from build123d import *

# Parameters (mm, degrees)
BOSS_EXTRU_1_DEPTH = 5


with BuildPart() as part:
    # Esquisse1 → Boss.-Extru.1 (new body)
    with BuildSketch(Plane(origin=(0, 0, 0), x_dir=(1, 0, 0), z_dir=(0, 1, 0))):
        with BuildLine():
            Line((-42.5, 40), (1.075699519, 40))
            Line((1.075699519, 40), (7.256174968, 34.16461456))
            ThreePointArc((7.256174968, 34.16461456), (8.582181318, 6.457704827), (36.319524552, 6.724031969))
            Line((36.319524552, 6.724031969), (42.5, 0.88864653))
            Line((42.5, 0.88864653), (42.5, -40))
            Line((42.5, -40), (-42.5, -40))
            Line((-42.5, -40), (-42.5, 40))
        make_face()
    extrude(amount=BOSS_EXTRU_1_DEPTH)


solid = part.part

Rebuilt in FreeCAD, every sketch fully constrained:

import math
import FreeCAD as App
import Part
import Sketcher

V = App.Vector

doc = App.newDocument("Part")
body = doc.addObject("PartDesign::Body", "Body")

sketch1 = body.newObject("Sketcher::SketchObject", "Sketch")
sketch1.AttachmentSupport = (doc.getObject("XZ_Plane"), [""])
sketch1.MapMode = "FlatFace"
sketch1.addGeometry(Part.LineSegment(V(1.0757, -40, 0), V(-42.5, -40, 0)), False)
sketch1.addGeometry(Part.LineSegment(V(-42.5, -40, 0), V(-42.5, 40, 0)), False)
sketch1.addGeometry(Part.LineSegment(V(-42.5, 40, 0), V(42.5, 40, 0)), False)
sketch1.addGeometry(Part.LineSegment(V(42.5, 40, 0), V(42.5, -0.888647, 0)), False)
sketch1.addGeometry(Part.LineSegment(V(42.5, -0.888647, 0), V(36.319525, -6.724032, 0)), False)
sketch1.addGeometry(Part.ArcOfCircle(Part.Circle(V(22.3125, -21, 0), V(0, 0, 1), 20), math.radians(45.54481), math.radians(221.165077)), False)
sketch1.addGeometry(Part.LineSegment(V(7.256175, -34.164615, 0), V(1.0757, -40, 0)), False)
sketch1.addConstraint(Sketcher.Constraint("Coincident", 0, 2, 1, 1))
sketch1.addConstraint(Sketcher.Constraint("Coincident", 1, 2, 2, 1))
sketch1.addConstraint(Sketcher.Constraint("Coincident", 2, 2, 3, 1))
sketch1.addConstraint(Sketcher.Constraint("Coincident", 3, 2, 4, 1))
sketch1.addConstraint(Sketcher.Constraint("Coincident", 4, 2, 5, 1))
sketch1.addConstraint(Sketcher.Constraint("Coincident", 5, 2, 6, 1))
sketch1.addConstraint(Sketcher.Constraint("Coincident", 6, 2, 0, 1))
sketch1.addConstraint(Sketcher.Constraint("Horizontal", 0))
sketch1.addConstraint(Sketcher.Constraint("Vertical", 1))
sketch1.addConstraint(Sketcher.Constraint("Horizontal", 2))
sketch1.addConstraint(Sketcher.Constraint("Vertical", 3))
sketch1.addConstraint(Sketcher.Constraint("Symmetric", 0, 2, 2, 2, -1, 1))
sketch1.addConstraint(Sketcher.Constraint("Parallel", 4, 6))
sketch1.addConstraint(Sketcher.Constraint("Equal", 4, 6))
sketch1.addConstraint(Sketcher.Constraint("Radius", 5, 20.0))
sketch1.addConstraint(Sketcher.Constraint("DistanceX", 2, 1, 2, 2, 85.0))
sketch1.addConstraint(Sketcher.Constraint("DistanceY", 1, 1, 1, 2, 80.0))
sketch1.addConstraint(Sketcher.Constraint("DistanceY", 5, 3, -1, 1, 21.0))
sketch1.addConstraint(Sketcher.Constraint("Distance", 4, 8.5))
sketch1.addConstraint(Sketcher.Constraint("DistanceX", 0, 2, 0, 1, 43.5757))
sketch1.addConstraint(Sketcher.Constraint("DistanceX", -1, 1, 5, 3, 22.3125))
pad1 = body.newObject("PartDesign::Pad", "Pad")
pad1.Profile = sketch1
pad1.Length = 5
pad1.Reversed = True

doc.recompute()
